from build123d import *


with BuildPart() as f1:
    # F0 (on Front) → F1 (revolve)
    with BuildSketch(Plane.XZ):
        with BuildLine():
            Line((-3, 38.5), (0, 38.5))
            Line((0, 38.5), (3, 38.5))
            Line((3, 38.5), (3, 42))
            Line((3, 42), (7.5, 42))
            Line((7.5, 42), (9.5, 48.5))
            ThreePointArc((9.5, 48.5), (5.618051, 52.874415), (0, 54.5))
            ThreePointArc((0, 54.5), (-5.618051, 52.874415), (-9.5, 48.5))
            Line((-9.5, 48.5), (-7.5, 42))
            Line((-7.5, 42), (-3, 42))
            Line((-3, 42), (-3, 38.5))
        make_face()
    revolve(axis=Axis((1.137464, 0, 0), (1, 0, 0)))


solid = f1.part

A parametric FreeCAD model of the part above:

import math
import FreeCAD as App
import Part
import Sketcher

V = App.Vector

doc = App.newDocument("Part")
body = doc.addObject("PartDesign::Body", "Body")

sketch1 = body.newObject("Sketcher::SketchObject", "Sketch")
sketch1.AttachmentSupport = (doc.getObject("XZ_Plane"), [""])
sketch1.MapMode = "FlatFace"
sketch1.addGeometry([
    Part.LineSegment(V(-3, 38.5, 0), V(3, 38.5, 0)),
    Part.LineSegment(V(3, 38.5, 0), V(3, 42, 0)),
    Part.LineSegment(V(3, 42, 0), V(7.5, 42, 0)),
    Part.LineSegment(V(7.5, 42, 0), V(9.5, 48.5, 0)),
    Part.ArcOfCircle(Part.Circle(V(0, 44, 0), V(0, 0, 1), 10.5), math.radians(25), math.radians(90)),
    Part.ArcOfCircle(Part.Circle(V(0, 44, 0), V(0, 0, 1), 10.5), math.radians(90), math.radians(155)),
    Part.LineSegment(V(-9.5, 48.5, 0), V(-7.5, 42, 0)),
    Part.LineSegment(V(-7.5, 42, 0), V(-3, 42, 0)),
    Part.LineSegment(V(-3, 42, 0), V(-3, 38.5, 0)),
], False)
sketch1.addConstraint([
    Sketcher.Constraint("Coincident", 0, 2, 1, 1),
    Sketcher.Constraint("Coincident", 1, 2, 2, 1),
    Sketcher.Constraint("Coincident", 2, 2, 3, 1),
    Sketcher.Constraint("Coincident", 3, 2, 4, 1),
    Sketcher.Constraint("Tangent", 4, 2, 5, 1),
    Sketcher.Constraint("Coincident", 5, 2, 6, 1),
    Sketcher.Constraint("Coincident", 6, 2, 7, 1),
    Sketcher.Constraint("Coincident", 7, 2, 8, 1),
    Sketcher.Constraint("Coincident", 8, 2, 0, 1),
    Sketcher.Constraint("Horizontal", 0),
    Sketcher.Constraint("Vertical", 1),
    Sketcher.Constraint("Horizontal", 2),
    Sketcher.Constraint("Horizontal", 7),
    Sketcher.Constraint("Vertical", 8),
    Sketcher.Constraint("Equal", 4, 5),
    Sketcher.Constraint("Symmetric", 3, 2, 5, 2, -2),
    Sketcher.Constraint("Symmetric", 2, 2, 6, 2, -2),
    Sketcher.Constraint("PointOnObject", 4, 2, -2),
    Sketcher.Constraint("Equal", 2, 7),
    Sketcher.Constraint("DistanceX", 0, 1, 0, 2, 6.0),
    Sketcher.Constraint("DistanceX", 2, 1, 2, 2, 4.5),
    Sketcher.Constraint("DistanceY", 1, 1, 1, 2, 3.5),
    Sketcher.Constraint("DistanceY", -1, 1, 1, 2, 42.0),
    Sketcher.Constraint("DistanceX", 2, 2, 3, 2, 2.0),
    Sketcher.Constraint("DistanceY", 0, 2, 3, 2, 10.0),
    Sketcher.Constraint("DistanceY", 3, 2, 4, 2, 6.0),
])
revolution = body.newObject("PartDesign::Revolution", "Revolution")
revolution.Profile = sketch1
revolution.ReferenceAxis = (sketch1, ["H_Axis"])
revolution.Angle = 360

doc.recompute()
